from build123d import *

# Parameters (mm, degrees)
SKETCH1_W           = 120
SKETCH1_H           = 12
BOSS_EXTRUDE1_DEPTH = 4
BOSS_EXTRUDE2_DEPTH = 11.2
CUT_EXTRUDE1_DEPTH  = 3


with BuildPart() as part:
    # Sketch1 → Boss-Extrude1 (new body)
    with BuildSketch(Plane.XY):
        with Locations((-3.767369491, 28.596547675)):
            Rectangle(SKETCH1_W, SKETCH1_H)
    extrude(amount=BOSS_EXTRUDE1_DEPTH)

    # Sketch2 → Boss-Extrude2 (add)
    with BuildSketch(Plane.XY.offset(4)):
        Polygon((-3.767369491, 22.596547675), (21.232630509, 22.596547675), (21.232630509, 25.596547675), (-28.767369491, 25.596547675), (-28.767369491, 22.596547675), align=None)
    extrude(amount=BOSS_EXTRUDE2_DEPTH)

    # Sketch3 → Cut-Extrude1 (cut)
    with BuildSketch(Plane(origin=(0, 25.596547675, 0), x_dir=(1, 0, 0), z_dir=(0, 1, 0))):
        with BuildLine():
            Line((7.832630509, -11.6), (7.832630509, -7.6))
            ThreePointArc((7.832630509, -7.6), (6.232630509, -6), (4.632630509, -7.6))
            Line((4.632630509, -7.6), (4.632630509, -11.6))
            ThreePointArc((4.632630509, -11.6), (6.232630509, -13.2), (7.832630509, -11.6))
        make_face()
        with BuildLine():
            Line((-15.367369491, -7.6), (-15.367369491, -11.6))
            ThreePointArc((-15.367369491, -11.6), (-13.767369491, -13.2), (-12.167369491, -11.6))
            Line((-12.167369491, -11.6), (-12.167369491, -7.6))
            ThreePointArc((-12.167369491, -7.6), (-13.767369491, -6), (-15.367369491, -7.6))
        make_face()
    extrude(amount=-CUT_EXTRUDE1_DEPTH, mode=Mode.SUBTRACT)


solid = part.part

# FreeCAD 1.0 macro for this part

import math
import FreeCAD as App
import Part
import Sketcher


def add_polygon(sketch, points):
    """Adds a closed chain of lines whose ends are joined by coincident constraints."""
    first, n = sketch.GeometryCount, len(points)
    for a, b in zip(points, points[1:] + points[:1]):
        sketch.addGeometry(Part.LineSegment(App.Vector(*a, 0), App.Vector(*b, 0)), False)
    for i in range(n):
        sketch.addConstraint(Sketcher.Constraint("Coincident", first + i, 2, first + (i + 1) % n, 1))

doc = App.newDocument("Part")
params = doc.addObject("Spreadsheet::Sheet", "Params")
for row, (alias, value) in enumerate([
    ("sketch1_width", "120 mm"),
    ("sketch1_height", "12 mm"),
    ("pad1_length", "4 mm"),
    ("sketch2_width", "50 mm"),
    ("sketch2_height", "3 mm"),
    ("pad2_length", "11.2 mm"),
    ("sketch3_radius", "1.6 mm"),
    ("sketch3_height", "4 mm"),
    ("pocket1_length", "3 mm"),
], start=1):
    params.set(f"A{row}", alias)
    params.set(f"B{row}", "=" + value)
    params.setAlias(f"B{row}", alias)

body = doc.addObject("PartDesign::Body", "Body")

sketch1 = body.newObject("Sketcher::SketchObject", "Sketch")
sketch1.AttachmentSupport = (doc.getObject("XY_Plane"), [""])
sketch1.MapMode = "FlatFace"
add_polygon(sketch1, [(-64, 35), (-64, 23), (56, 23), (56, 35)])
sketch1.addConstraint([
    Sketcher.Constraint("Vertical", 0),
    Sketcher.Constraint("Horizontal", 1),
    Sketcher.Constraint("Vertical", 2),
    Sketcher.Constraint("Horizontal", 3),
    Sketcher.Constraint("DistanceX", 1, 1, 1, 2, 120.0),
    Sketcher.Constraint("DistanceY", 0, 2, 0, 1, 12.0),
    Sketcher.Constraint("DistanceX", 0, 2, -1, 1, 63.767369),
    Sketcher.Constraint("DistanceY", -1, 1, 0, 2, 22.596548),
])
sketch1.setExpression("Constraints[8]", "Params.sketch1_width")
sketch1.setExpression("Constraints[9]", "Params.sketch1_height")
pad1 = body.newObject("PartDesign::Pad", "Pad")
pad1.Profile = sketch1
pad1.setExpression("Length", "Params.pad1_length")

sketch2 = body.newObject("Sketcher::SketchObject", "Sketch001")
sketch2.AttachmentSupport = (doc.getObject("XY_Plane"), [""])
sketch2.MapMode = "FlatFace"
sketch2.AttachmentOffset = App.Placement(App.Vector(0, 0, 4), App.Rotation())
add_polygon(sketch2, [(21.2, 22.6), (21.2, 25.6), (-28.8, 25.6), (-28.8, 22.6)])
sketch2.addConstraint([
    Sketcher.Constraint("Vertical", 0),
    Sketcher.Constraint("Horizontal", 1),
    Sketcher.Constraint("Vertical", 2),
    Sketcher.Constraint("Horizontal", 3),
    Sketcher.Constraint("DistanceX", 1, 2, 1, 1, 50.0),
    Sketcher.Constraint("DistanceY", 0, 1, 0, 2, 3.0),
    Sketcher.Constraint("DistanceX", -1, 1, 0, 2, 21.232631),
    Sketcher.Constraint("DistanceY", -1, 1, 0, 2, 25.596548),
])
sketch2.setExpression("Constraints[8]", "Params.sketch2_width")
sketch2.setExpression("Constraints[9]", "Params.sketch2_height")
pad2 = body.newObject("PartDesign::Pad", "Pad001")
pad2.Profile = sketch2
pad2.setExpression("Length", "Params.pad2_length")

sketch3 = body.newObject("Sketcher::SketchObject", "Sketch002")
sketch3.AttachmentSupport = (doc.getObject("XZ_Plane"), [""])
sketch3.MapMode = "FlatFace"
sketch3.AttachmentOffset = App.Placement(App.Vector(0, 0, -25.596548), App.Rotation())
sketch3.addGeometry([
    Part.LineSegment(App.Vector(7.8, 11.6, 0), App.Vector(7.8, 7.6, 0)),
    Part.ArcOfCircle(Part.Circle(App.Vector(6.2, 7.6, 0), App.Vector(0, 0, 1), 1.6), math.radians(180), math.radians(360)),
    Part.LineSegment(App.Vector(4.6, 7.6, 0), App.Vector(4.6, 11.6, 0)),
    Part.ArcOfCircle(Part.Circle(App.Vector(6.2, 11.6, 0), App.Vector(0, 0, 1), 1.6), math.radians(0), math.radians(180)),
    Part.LineSegment(App.Vector(-15.4, 7.6, 0), App.Vector(-15.4, 11.6, 0)),
    Part.ArcOfCircle(Part.Circle(App.Vector(-13.8, 11.6, 0), App.Vector(0, 0, 1), 1.6), math.radians(0), math.radians(180)),
    Part.LineSegment(App.Vector(-12.2, 11.6, 0), App.Vector(-12.2, 7.6, 0)),
    Part.ArcOfCircle(Part.Circle(App.Vector(-13.8, 7.6, 0), App.Vector(0, 0, 1), 1.6), math.radians(180), math.radians(360)),
], False)
sketch3.addConstraint([
    Sketcher.Constraint("Tangent", 0, 2, 1, 2),
    Sketcher.Constraint("Tangent", 1, 1, 2, 1),
    Sketcher.Constraint("Tangent", 2, 2, 3, 2),
    Sketcher.Constraint("Tangent", 3, 1, 0, 1),
    Sketcher.Constraint("Tangent", 4, 2, 5, 2),
    Sketcher.Constraint("Tangent", 5, 1, 6, 1),
    Sketcher.Constraint("Tangent", 6, 2, 7, 2),
    Sketcher.Constraint("Tangent", 7, 1, 4, 1),
    Sketcher.Constraint("Vertical", 0),
    Sketcher.Constraint("Vertical", 2),
    Sketcher.Constraint("Vertical", 4),
    Sketcher.Constraint("Vertical", 6),
    Sketcher.Constraint("Equal", 3, 5),
    Sketcher.Constraint("Horizontal", 3, 3, 5, 3),
    Sketcher.Constraint("Horizontal", 1, 3, 7, 3),
    Sketcher.Constraint("Radius", 1, 1.6),
    Sketcher.Constraint("DistanceY", 0, 2, 0, 1, 4.0),
    Sketcher.Constraint("DistanceX", 5, 3, 3, 3, 20.0),
    Sketcher.Constraint("DistanceY", -1, 1, 1, 3, 7.6),
    Sketcher.Constraint("DistanceX", -1, 1, 1, 3, 6.232631),
])
sketch3.setExpression("Constraints[15]", "Params.sketch3_radius")
sketch3.setExpression("Constraints[16]", "Params.sketch3_height")
pocket1 = body.newObject("PartDesign::Pocket", "Pocket")
pocket1.Profile = sketch3
pocket1.setExpression("Length", "Params.pocket1_length")
pocket1.Reversed = True

doc.recompute()
